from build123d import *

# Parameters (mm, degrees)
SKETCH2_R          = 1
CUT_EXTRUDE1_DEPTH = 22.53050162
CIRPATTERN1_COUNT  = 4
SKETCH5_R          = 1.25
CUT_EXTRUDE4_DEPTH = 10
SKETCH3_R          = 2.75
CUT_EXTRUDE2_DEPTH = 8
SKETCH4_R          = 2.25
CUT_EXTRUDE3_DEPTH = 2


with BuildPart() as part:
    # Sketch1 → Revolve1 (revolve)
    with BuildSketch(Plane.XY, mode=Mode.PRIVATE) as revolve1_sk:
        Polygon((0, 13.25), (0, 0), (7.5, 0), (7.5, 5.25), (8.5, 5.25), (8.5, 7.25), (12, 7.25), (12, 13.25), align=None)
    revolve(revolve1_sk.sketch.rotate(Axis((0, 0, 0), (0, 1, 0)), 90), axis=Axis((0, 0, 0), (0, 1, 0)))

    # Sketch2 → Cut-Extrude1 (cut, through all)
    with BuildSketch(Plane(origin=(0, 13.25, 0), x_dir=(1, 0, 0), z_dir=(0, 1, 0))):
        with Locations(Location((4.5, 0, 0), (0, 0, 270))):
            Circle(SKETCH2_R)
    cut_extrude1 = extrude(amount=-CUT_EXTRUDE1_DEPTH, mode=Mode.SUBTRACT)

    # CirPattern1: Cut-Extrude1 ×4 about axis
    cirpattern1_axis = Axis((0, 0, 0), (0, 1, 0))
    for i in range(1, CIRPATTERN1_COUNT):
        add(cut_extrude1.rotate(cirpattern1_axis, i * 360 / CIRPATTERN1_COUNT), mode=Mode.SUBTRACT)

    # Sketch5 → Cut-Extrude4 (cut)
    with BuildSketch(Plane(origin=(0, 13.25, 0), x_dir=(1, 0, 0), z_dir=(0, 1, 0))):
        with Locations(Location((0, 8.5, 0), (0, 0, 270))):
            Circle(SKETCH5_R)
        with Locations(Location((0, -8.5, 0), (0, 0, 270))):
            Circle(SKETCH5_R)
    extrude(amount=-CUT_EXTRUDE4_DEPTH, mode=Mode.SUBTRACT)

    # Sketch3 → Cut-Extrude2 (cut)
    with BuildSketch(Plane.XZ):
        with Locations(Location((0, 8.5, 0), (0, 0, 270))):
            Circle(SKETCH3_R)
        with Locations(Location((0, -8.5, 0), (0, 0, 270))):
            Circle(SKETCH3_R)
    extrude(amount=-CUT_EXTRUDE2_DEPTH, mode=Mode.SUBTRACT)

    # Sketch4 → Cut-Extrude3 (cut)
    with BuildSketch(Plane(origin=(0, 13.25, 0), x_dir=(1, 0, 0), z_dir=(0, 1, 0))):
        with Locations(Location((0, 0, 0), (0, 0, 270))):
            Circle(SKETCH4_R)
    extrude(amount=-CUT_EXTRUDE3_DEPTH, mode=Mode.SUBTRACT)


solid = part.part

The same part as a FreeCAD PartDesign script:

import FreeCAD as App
import Part
import Sketcher

V = App.Vector


def add_polygon(sketch, points):
    """Adds a closed chain of lines whose ends are joined by coincident constraints."""
    first, n = sketch.GeometryCount, len(points)
    for a, b in zip(points, points[1:] + points[:1]):
        sketch.addGeometry(Part.LineSegment(App.Vector(*a, 0), App.Vector(*b, 0)), False)
    for i in range(n):
        sketch.addConstraint(Sketcher.Constraint("Coincident", first + i, 2, first + (i + 1) % n, 1))

doc = App.newDocument("Part")
body = doc.addObject("PartDesign::Body", "Body")

# Sketch on XY plane
sketch1 = body.newObject("Sketcher::SketchObject", "Sketch")
sketch1.AttachmentSupport = (doc.getObject("XY_Plane"), [""])
sketch1.MapMode = "FlatFace"
add_polygon(sketch1, [(0, 13.2), (0, 0), (7.5, 0), (7.5, 5.2), (8.5, 5.2), (8.5, 7.2), (12, 7.2), (12, 13.2)])  # lines 0-7
sketch1.addConstraint([
    Sketcher.Constraint("Vertical", 0),
    Sketcher.Constraint("Horizontal", 1),
    Sketcher.Constraint("Vertical", 2),
    Sketcher.Constraint("Horizontal", 3),
    Sketcher.Constraint("Vertical", 4),
    Sketcher.Constraint("Horizontal", 5),
    Sketcher.Constraint("Vertical", 6),
    Sketcher.Constraint("Horizontal", 7),
    Sketcher.Constraint("Coincident", 0, 2, -1, 1),
    Sketcher.Constraint("DistanceX", 3, 1, 3, 2, 1.0),
    Sketcher.Constraint("DistanceX", 7, 2, 7, 1, 12.0),
    Sketcher.Constraint("DistanceY", 4, 1, 4, 2, 2.0),
    Sketcher.Constraint("DistanceY", 6, 1, 6, 2, 6.0),
    Sketcher.Constraint("DistanceX", 1, 1, 1, 2, 7.5),
    Sketcher.Constraint("DistanceY", 0, 2, 0, 1, 13.25),
])
revolution = body.newObject("PartDesign::Revolution", "Revolution")
revolution.Profile = sketch1
revolution.ReferenceAxis = (sketch1, ["V_Axis"])
revolution.Angle = 360

# Sketch on XZ plane
sketch2 = body.newObject("Sketcher::SketchObject", "Sketch001")
sketch2.AttachmentSupport = (doc.getObject("XZ_Plane"), [""])
sketch2.MapMode = "FlatFace"
sketch2.AttachmentOffset = App.Placement(V(0, 0, -13.25), App.Rotation())
sketch2.addGeometry(Part.Circle(V(4.5, 0, 0), V(0, 0, 1), 1), False)
sketch2.addConstraint([
    Sketcher.Constraint("PointOnObject", 0, 3, -1),
    Sketcher.Constraint("Diameter", 0, 2.0),
    Sketcher.Constraint("DistanceX", -1, 1, 0, 3, 4.5),
])
pocket1 = body.newObject("PartDesign::Pocket", "Pocket")
pocket1.Profile = sketch2
pocket1.Type = "ThroughAll"
pocket1.Reversed = True
doc.recompute()

polarpattern = body.newObject("PartDesign::PolarPattern", "PolarPattern")
polarpattern.Originals = [pocket1]
polarpattern.Axis = (doc.getObject("Y_Axis"), [""])
polarpattern.Angle = 360
polarpattern.Occurrences = 4
body.Tip = polarpattern

# Sketch on XZ plane
sketch3 = body.newObject("Sketcher::SketchObject", "Sketch002")
sketch3.AttachmentSupport = (doc.getObject("XZ_Plane"), [""])
sketch3.MapMode = "FlatFace"
sketch3.AttachmentOffset = App.Placement(V(0, 0, -13.25), App.Rotation())
sketch3.addGeometry([
    Part.Circle(V(0, -8.5, 0), V(0, 0, 1), 1.2),
    Part.Circle(V(0, 8.5, 0), V(0, 0, 1), 1.2),
], False)
sketch3.addConstraint([
    Sketcher.Constraint("Equal", 0, 1),
    Sketcher.Constraint("Symmetric", 0, 3, 1, 3, -1, 1),
    Sketcher.Constraint("PointOnObject", 0, 3, -2),
    Sketcher.Constraint("Diameter", 0, 2.5),
    Sketcher.Constraint("DistanceY", 0, 3, 1, 3, 17.0),
])
pocket2 = body.newObject("PartDesign::Pocket", "Pocket001")
pocket2.Profile = sketch3
pocket2.Length = 10
pocket2.Reversed = True

# Sketch on XZ plane
sketch4 = body.newObject("Sketcher::SketchObject", "Sketch003")
sketch4.AttachmentSupport = (doc.getObject("XZ_Plane"), [""])
sketch4.MapMode = "FlatFace"
sketch4.addGeometry([
    Part.Circle(V(0, 8.5, 0), V(0, 0, 1), 2.8),
    Part.Circle(V(0, -8.5, 0), V(0, 0, 1), 2.8),
], False)
sketch4.addConstraint([
    Sketcher.Constraint("Equal", 0, 1),
    Sketcher.Constraint("Symmetric", 0, 3, 1, 3, -1, 1),
    Sketcher.Constraint("PointOnObject", 0, 3, -2),
    Sketcher.Constraint("Diameter", 0, 5.5),
    Sketcher.Constraint("DistanceY", 1, 3, 0, 3, 17.0),
])
pocket3 = body.newObject("PartDesign::Pocket", "Pocket002")
pocket3.Profile = sketch4
pocket3.Length = 8

# Sketch on XZ plane
sketch5 = body.newObject("Sketcher::SketchObject", "Sketch004")
sketch5.AttachmentSupport = (doc.getObject("XZ_Plane"), [""])
sketch5.MapMode = "FlatFace"
sketch5.AttachmentOffset = App.Placement(V(0, 0, -13.25), App.Rotation())
sketch5.addGeometry(Part.Circle(V(0, 0, 0), V(0, 0, 1), 2.2), False)
sketch5.addConstraint([
    Sketcher.Constraint("Coincident", 0, 3, -1, 1),
    Sketcher.Constraint("Diameter", 0, 4.5),
])
pocket4 = body.newObject("PartDesign::Pocket", "Pocket003")
pocket4.Profile = sketch5
pocket4.Length = 2
pocket4.Reversed = True

doc.recompute()
